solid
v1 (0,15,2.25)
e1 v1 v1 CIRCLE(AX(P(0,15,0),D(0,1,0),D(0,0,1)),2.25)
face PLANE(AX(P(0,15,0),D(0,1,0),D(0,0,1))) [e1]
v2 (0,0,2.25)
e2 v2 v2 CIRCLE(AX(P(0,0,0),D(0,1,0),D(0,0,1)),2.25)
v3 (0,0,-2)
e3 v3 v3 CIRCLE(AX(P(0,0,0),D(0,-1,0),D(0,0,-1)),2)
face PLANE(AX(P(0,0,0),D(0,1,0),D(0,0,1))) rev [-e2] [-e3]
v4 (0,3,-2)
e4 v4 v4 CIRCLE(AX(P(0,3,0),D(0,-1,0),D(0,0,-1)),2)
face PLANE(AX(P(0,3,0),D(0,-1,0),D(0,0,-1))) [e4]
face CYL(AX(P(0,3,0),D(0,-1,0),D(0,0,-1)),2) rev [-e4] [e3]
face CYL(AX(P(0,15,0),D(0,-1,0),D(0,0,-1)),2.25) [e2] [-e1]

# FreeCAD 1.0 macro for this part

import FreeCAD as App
import Part
import Sketcher

V = App.Vector

doc = App.newDocument("Part")
body = doc.addObject("PartDesign::Body", "Body")

# Sketch on XZ plane
sketch1 = doc.addObject("Sketcher::SketchObject", "Sketch")
body.addObject(sketch1)
sketch1.AttachmentSupport = (doc.XZ_Plane, [""])
sketch1.MapMode = "FlatFace"
sketch1.addGeometry(Part.Circle(V(0, 0, 0), V(0, 0, 1), 2.2), False)
sketch1.addConstraint([
    Sketcher.Constraint("Coincident", 0, 3, -1, 1),
    Sketcher.Constraint("Diameter", 0, 4.5),
])
pad1 = doc.addObject("PartDesign::Pad", "Pad")
body.addObject(pad1)
pad1.Profile = sketch1
pad1.Length = 15
pad1.Reversed = True

# Sketch on XZ plane
sketch2 = doc.addObject("Sketcher::SketchObject", "Sketch001")
body.addObject(sketch2)
sketch2.AttachmentSupport = (doc.XZ_Plane, [""])
sketch2.MapMode = "FlatFace"
sketch2.addGeometry(Part.Circle(V(0, 0, 0), V(0, 0, 1), 2), False)
sketch2.addConstraint([
    Sketcher.Constraint("Coincident", 0, 3, -1, 1),
    Sketcher.Constraint("Diameter", 0, 4.0),
])
pocket1 = doc.addObject("PartDesign::Pocket", "Pocket")
body.addObject(pocket1)
pocket1.Profile = sketch2
pocket1.Length = 3

doc.recompute()
